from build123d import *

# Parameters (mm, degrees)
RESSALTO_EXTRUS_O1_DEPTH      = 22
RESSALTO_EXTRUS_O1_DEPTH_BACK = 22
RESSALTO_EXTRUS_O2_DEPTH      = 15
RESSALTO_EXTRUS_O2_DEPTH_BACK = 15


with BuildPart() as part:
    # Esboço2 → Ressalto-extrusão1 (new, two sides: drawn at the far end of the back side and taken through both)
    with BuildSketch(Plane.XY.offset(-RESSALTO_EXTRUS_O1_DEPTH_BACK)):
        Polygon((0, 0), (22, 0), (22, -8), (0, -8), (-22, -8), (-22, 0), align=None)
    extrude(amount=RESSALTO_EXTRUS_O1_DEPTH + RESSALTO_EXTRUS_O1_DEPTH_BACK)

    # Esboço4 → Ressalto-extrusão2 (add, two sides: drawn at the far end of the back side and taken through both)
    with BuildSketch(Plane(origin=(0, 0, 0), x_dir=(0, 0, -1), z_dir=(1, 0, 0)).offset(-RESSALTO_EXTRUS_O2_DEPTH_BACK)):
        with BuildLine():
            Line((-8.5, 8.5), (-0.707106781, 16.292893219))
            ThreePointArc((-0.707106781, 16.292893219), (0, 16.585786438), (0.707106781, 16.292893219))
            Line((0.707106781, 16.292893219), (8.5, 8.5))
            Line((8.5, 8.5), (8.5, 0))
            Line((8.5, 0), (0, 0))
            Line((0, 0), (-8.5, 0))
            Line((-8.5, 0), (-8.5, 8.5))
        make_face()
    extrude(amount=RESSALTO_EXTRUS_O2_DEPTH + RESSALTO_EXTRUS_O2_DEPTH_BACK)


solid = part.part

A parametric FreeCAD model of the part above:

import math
import FreeCAD as App
import Part
import Sketcher

V = App.Vector
Q = App.Units.Quantity


def add_polygon(sketch, points):
    """Adds a closed chain of lines whose ends are joined by coincident constraints."""
    first, n = sketch.GeometryCount, len(points)
    for a, b in zip(points, points[1:] + points[:1]):
        sketch.addGeometry(Part.LineSegment(App.Vector(*a, 0), App.Vector(*b, 0)), False)
    for i in range(n):
        sketch.addConstraint(Sketcher.Constraint("Coincident", first + i, 2, first + (i + 1) % n, 1))

doc = App.newDocument("Part")
body = doc.addObject("PartDesign::Body", "Body")

# Sketch on XY plane
sketch1 = doc.addObject("Sketcher::SketchObject", "Sketch")
body.addObject(sketch1)
sketch1.AttachmentSupport = (doc.XY_Plane, [""])
sketch1.MapMode = "FlatFace"
add_polygon(sketch1, [(22, 0), (-22, 0), (-22, -8), (22, -8)])  # lines 0-3
sketch1.addConstraint(Sketcher.Constraint("Horizontal", 0))
sketch1.addConstraint(Sketcher.Constraint("Vertical", 1))
sketch1.addConstraint(Sketcher.Constraint("Horizontal", 2))
sketch1.addConstraint(Sketcher.Constraint("Vertical", 3))
sketch1.addConstraint(Sketcher.Constraint("Symmetric", 0, 2, 3, 2, -1, 1))
sketch1.addConstraint(Sketcher.Constraint("DistanceX", 0, 2, 0, 1, Q("44 mm")))
sketch1.addConstraint(Sketcher.Constraint("DistanceY", 1, 2, 1, 1, Q("8 mm")))
pad1 = doc.addObject("PartDesign::Pad", "Pad")
body.addObject(pad1)
pad1.Profile = sketch1
pad1.Type = "TwoLengths"
pad1.Length = 22
pad1.Length2 = 22

# Sketch on YZ plane
sketch2 = doc.addObject("Sketcher::SketchObject", "Sketch001")
body.addObject(sketch2)
sketch2.AttachmentSupport = (doc.YZ_Plane, [""])
sketch2.MapMode = "FlatFace"
sketch2.addGeometry(Part.LineSegment(V(16.3, 0.7, 0), V(8.5, 8.5, 0)), False)
sketch2.addGeometry(Part.LineSegment(V(8.5, 8.5, 0), V(0, 8.5, 0)), False)
sketch2.addGeometry(Part.LineSegment(V(0, 8.5, 0), V(0, -8.5, 0)), False)
sketch2.addGeometry(Part.LineSegment(V(0, -8.5, 0), V(8.5, -8.5, 0)), False)
sketch2.addGeometry(Part.LineSegment(V(8.5, -8.5, 0), V(16.3, -0.7, 0)), False)
sketch2.addGeometry(Part.ArcOfCircle(Part.Circle(V(15.6, 0, 0), V(0, 0, 1), 1), math.radians(-45), math.radians(45)), False)
sketch2.addConstraint(Sketcher.Constraint("Coincident", 0, 2, 1, 1))
sketch2.addConstraint(Sketcher.Constraint("Coincident", 1, 2, 2, 1))
sketch2.addConstraint(Sketcher.Constraint("Coincident", 2, 2, 3, 1))
sketch2.addConstraint(Sketcher.Constraint("Coincident", 3, 2, 4, 1))
sketch2.addConstraint(Sketcher.Constraint("Tangent", 4, 2, 5, 1))
sketch2.addConstraint(Sketcher.Constraint("Tangent", 5, 2, 0, 1))
sketch2.addConstraint(Sketcher.Constraint("Horizontal", 1))
sketch2.addConstraint(Sketcher.Constraint("Vertical", 2))
sketch2.addConstraint(Sketcher.Constraint("Horizontal", 3))
sketch2.addConstraint(Sketcher.Constraint("Symmetric", 1, 2, 2, 2, -1, 1))
sketch2.addConstraint(Sketcher.Constraint("Symmetric", 4, 2, 5, 2, -1))
sketch2.addConstraint(Sketcher.Constraint("Perpendicular", 0, 4))
sketch2.addConstraint(Sketcher.Constraint("Radius", 5, Q("1 mm")))
sketch2.addConstraint(Sketcher.Constraint("DistanceY", 2, 2, 2, 1, Q("17 mm")))
sketch2.addConstraint(Sketcher.Constraint("DistanceX", 1, 2, 1, 1, Q("8.5 mm")))
pad2 = doc.addObject("PartDesign::Pad", "Pad001")
body.addObject(pad2)
pad2.Profile = sketch2
pad2.Type = "TwoLengths"
pad2.Length = 15
pad2.Length2 = 15

doc.recompute()
